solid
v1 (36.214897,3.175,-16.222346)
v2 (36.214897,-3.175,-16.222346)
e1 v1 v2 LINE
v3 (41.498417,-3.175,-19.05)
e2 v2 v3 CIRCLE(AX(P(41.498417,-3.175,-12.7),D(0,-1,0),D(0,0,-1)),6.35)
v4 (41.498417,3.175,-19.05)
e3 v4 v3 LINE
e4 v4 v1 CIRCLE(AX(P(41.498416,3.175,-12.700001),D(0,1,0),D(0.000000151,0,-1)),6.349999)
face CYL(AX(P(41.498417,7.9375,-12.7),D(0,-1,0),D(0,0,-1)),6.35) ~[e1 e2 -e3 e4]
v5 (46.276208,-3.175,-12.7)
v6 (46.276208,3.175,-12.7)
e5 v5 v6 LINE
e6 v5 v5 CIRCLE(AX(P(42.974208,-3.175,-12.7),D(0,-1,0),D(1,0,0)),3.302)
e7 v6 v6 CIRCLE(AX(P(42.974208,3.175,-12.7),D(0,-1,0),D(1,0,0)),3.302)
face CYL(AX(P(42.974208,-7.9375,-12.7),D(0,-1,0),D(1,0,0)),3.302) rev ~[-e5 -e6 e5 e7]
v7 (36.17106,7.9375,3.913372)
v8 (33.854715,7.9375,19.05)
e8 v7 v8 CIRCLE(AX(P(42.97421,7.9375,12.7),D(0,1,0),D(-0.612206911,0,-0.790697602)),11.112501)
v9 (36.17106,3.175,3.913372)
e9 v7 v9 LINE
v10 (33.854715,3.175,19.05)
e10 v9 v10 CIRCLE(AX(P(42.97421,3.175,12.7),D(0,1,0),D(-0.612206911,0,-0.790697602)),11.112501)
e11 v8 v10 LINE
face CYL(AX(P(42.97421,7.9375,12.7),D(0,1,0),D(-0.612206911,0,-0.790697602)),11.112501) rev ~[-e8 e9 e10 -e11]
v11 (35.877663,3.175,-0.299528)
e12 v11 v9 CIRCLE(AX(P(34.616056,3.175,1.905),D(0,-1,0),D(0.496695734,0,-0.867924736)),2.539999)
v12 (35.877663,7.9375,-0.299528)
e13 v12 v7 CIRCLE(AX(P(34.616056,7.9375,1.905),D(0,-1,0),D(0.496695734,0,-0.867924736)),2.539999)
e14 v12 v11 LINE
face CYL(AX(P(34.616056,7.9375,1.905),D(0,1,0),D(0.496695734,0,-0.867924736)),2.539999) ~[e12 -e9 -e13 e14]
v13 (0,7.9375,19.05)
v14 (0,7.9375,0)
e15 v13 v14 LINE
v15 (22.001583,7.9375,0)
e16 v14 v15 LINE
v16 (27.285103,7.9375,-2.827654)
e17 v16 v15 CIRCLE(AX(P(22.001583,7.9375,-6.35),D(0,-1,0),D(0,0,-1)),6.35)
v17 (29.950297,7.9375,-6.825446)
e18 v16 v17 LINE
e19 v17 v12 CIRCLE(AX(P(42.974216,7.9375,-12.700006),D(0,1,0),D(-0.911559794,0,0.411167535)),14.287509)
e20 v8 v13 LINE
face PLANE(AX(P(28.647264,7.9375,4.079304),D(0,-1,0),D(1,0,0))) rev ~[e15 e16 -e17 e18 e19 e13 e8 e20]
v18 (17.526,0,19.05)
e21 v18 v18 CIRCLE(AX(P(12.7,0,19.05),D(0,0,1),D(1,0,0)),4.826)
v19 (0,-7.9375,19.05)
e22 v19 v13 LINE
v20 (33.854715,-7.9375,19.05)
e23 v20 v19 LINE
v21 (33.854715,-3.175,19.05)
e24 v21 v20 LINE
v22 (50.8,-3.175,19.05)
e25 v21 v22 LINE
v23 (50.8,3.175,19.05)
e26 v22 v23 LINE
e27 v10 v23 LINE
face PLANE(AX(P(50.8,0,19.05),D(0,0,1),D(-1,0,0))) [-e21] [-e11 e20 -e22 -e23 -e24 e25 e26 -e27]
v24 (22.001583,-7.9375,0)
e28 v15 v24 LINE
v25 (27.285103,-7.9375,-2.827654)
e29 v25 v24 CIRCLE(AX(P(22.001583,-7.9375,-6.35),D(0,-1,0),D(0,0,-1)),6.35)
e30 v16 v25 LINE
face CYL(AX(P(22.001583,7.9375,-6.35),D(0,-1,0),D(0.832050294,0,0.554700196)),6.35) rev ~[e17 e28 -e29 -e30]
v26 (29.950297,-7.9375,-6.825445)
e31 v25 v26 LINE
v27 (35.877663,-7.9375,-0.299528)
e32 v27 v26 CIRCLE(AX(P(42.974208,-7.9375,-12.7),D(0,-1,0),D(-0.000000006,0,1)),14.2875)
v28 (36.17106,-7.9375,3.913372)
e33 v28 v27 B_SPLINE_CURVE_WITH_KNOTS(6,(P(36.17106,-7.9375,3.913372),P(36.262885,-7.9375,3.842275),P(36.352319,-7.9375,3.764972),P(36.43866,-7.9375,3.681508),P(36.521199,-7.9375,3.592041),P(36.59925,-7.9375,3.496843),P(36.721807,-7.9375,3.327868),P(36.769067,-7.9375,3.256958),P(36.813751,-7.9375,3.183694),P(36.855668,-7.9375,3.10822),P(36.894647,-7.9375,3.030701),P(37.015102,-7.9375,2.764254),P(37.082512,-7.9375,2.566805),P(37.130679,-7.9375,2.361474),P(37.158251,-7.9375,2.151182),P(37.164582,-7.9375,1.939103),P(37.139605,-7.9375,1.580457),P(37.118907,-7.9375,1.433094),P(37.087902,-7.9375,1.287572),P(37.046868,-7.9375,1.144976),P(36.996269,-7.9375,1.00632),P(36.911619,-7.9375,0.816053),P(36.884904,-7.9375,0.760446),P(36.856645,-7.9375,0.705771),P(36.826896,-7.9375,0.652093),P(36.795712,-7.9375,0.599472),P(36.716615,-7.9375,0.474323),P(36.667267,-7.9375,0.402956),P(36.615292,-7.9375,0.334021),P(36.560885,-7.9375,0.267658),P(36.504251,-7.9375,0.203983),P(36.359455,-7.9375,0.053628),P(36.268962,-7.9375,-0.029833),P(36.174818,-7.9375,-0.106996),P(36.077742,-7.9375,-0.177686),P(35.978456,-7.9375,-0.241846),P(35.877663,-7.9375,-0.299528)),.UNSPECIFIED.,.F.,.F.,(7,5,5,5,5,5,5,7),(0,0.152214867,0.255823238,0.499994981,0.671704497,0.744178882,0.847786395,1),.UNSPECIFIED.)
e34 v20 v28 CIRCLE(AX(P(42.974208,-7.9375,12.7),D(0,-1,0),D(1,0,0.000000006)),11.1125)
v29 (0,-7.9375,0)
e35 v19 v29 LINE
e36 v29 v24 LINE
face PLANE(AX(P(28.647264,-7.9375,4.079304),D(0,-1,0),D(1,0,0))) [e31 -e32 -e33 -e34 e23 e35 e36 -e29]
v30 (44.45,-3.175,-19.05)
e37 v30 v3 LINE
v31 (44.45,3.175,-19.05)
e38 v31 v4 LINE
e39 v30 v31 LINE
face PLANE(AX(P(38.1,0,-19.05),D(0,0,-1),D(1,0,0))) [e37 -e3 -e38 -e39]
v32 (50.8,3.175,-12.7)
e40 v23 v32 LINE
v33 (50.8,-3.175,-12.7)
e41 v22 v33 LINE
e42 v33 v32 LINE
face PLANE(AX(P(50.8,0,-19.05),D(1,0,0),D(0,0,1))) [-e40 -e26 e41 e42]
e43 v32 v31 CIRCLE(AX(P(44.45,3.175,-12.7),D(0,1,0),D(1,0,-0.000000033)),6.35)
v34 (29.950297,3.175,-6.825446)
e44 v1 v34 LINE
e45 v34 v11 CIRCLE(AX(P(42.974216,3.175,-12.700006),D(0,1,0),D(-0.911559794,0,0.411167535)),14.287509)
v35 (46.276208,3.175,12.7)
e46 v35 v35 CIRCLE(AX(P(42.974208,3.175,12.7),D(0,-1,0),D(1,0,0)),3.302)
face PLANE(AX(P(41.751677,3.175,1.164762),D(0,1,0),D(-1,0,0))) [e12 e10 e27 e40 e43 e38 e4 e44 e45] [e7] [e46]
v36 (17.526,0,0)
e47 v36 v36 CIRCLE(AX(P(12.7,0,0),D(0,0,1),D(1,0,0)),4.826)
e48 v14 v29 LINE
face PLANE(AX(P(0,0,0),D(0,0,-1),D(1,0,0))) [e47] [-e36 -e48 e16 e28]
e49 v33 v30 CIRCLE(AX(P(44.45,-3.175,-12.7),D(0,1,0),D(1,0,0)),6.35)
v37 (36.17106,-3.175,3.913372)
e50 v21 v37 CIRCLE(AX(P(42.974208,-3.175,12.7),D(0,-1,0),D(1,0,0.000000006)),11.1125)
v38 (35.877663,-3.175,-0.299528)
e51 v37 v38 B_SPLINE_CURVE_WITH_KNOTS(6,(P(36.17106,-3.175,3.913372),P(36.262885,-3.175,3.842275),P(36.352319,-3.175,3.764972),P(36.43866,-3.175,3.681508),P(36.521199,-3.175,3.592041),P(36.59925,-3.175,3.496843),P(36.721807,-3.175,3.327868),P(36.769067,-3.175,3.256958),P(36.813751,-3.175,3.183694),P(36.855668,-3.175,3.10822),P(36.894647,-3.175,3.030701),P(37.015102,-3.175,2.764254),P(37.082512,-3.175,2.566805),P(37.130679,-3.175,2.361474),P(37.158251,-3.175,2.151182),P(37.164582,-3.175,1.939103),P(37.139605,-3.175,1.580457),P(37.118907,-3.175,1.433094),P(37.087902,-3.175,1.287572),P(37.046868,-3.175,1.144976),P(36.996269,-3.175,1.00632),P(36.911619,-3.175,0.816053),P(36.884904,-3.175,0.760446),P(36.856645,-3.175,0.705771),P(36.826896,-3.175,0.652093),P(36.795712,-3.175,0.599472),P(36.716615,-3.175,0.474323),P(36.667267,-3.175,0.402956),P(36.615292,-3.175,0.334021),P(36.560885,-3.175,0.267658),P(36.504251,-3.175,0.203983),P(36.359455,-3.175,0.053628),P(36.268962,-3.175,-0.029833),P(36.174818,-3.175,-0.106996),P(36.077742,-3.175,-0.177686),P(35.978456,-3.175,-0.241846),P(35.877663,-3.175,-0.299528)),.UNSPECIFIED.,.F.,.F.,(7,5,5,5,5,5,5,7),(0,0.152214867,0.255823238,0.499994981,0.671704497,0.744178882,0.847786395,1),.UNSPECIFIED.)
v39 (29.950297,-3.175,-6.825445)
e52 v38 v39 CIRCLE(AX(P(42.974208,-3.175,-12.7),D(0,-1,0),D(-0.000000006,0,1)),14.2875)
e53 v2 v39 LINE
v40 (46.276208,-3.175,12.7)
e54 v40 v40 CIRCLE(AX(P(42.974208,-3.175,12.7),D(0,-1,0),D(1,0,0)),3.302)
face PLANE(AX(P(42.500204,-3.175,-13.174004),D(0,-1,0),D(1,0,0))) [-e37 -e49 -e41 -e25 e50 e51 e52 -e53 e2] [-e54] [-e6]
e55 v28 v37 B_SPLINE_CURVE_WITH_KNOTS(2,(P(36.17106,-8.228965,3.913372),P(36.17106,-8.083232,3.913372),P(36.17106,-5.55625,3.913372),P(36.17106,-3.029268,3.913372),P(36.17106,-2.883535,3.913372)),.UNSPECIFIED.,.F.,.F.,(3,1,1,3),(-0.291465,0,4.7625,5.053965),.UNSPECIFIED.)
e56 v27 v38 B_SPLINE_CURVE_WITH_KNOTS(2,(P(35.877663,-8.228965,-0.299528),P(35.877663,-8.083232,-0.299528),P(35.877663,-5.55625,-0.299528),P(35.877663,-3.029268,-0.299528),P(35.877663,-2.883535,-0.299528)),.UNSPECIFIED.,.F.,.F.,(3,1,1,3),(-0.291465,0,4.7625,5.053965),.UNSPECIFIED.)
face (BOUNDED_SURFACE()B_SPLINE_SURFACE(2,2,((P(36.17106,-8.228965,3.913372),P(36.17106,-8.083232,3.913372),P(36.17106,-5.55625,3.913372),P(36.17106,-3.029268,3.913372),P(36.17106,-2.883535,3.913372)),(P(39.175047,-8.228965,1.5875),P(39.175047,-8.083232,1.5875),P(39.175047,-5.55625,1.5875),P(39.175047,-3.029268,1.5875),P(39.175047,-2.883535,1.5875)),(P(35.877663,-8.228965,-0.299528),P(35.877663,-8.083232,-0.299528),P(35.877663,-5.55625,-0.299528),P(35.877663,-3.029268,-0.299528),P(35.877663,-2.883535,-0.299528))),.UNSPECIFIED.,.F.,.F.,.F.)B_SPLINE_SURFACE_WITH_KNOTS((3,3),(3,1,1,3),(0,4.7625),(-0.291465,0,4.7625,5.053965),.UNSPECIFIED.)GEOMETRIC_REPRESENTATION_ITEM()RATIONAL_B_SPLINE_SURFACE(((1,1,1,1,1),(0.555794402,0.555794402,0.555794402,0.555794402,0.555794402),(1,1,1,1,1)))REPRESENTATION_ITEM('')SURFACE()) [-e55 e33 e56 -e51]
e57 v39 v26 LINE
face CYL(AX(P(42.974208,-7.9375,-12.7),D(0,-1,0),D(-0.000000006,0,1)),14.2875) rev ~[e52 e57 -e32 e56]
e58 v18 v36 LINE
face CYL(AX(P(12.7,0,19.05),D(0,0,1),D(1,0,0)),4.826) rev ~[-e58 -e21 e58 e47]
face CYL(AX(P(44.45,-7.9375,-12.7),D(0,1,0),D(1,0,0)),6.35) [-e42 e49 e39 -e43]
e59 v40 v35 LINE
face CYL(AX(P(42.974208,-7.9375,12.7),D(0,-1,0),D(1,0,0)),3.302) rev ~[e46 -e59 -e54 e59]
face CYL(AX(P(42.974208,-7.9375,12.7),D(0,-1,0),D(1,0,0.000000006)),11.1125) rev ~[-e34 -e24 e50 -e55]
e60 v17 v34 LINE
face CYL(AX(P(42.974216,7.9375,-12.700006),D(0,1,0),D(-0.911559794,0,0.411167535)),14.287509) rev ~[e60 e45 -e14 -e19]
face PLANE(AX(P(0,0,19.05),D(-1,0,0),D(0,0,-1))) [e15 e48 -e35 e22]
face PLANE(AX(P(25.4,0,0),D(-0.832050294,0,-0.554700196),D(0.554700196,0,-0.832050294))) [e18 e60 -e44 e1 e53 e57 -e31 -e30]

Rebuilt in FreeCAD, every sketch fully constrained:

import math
import FreeCAD as App
import Part
import Sketcher

V = App.Vector
Q = App.Units.Quantity


def edges_at(feature, points):
    """Names of the edges that pass closest to the given points."""
    edges = feature.Shape.Edges
    near = lambda p: min(range(len(edges)), key=lambda i: edges[i].distToShape(Part.Vertex(*p))[0])
    return sorted({f"Edge{near(p) + 1}" for p in points})

doc = App.newDocument("Part")
body = doc.addObject("PartDesign::Body", "Body")

# Sketch on XZ plane
sketch1 = doc.addObject("Sketcher::SketchObject", "Sketch")
body.addObject(sketch1)
sketch1.AttachmentSupport = (doc.XZ_Plane, [""])
sketch1.MapMode = "FlatFace"
sketch1.addGeometry(Part.LineSegment(V(0, 19, 0), V(0, 0, 0)), False)
sketch1.addGeometry(Part.LineSegment(V(0, 0, 0), V(25, 0, 0)), False)
sketch1.addGeometry(Part.LineSegment(V(25, 0, 0), V(38, -19, 0)), False)
sketch1.addGeometry(Part.LineSegment(V(38, -19, 0), V(51, -19, 0)), False)
sketch1.addGeometry(Part.LineSegment(V(51, -19, 0), V(51, 19, 0)), False)
sketch1.addGeometry(Part.LineSegment(V(51, 19, 0), V(0, 19, 0)), False)
sketch1.addConstraint(Sketcher.Constraint("Coincident", 0, 2, 1, 1))
sketch1.addConstraint(Sketcher.Constraint("Coincident", 1, 2, 2, 1))
sketch1.addConstraint(Sketcher.Constraint("Coincident", 2, 2, 3, 1))
sketch1.addConstraint(Sketcher.Constraint("Coincident", 3, 2, 4, 1))
sketch1.addConstraint(Sketcher.Constraint("Coincident", 4, 2, 5, 1))
sketch1.addConstraint(Sketcher.Constraint("Coincident", 5, 2, 0, 1))
sketch1.addConstraint(Sketcher.Constraint("Vertical", 0))
sketch1.addConstraint(Sketcher.Constraint("Horizontal", 1))
sketch1.addConstraint(Sketcher.Constraint("Horizontal", 3))
sketch1.addConstraint(Sketcher.Constraint("Vertical", 4))
sketch1.addConstraint(Sketcher.Constraint("Horizontal", 5))
sketch1.addConstraint(Sketcher.Constraint("Coincident", 0, 2, -1, 1))
sketch1.addConstraint(Sketcher.Constraint("DistanceX", 1, 1, 1, 2, Q("1 in")))
sketch1.addConstraint(Sketcher.Constraint("DistanceX", 5, 2, 5, 1, Q("2 in")))
sketch1.addConstraint(Sketcher.Constraint("DistanceX", 3, 1, 3, 2, Q("0.5 in")))
sketch1.addConstraint(Sketcher.Constraint("DistanceY", 4, 1, 4, 2, Q("1.5 in")))
sketch1.addConstraint(Sketcher.Constraint("DistanceY", 0, 2, 0, 1, Q("0.75 in")))
pad1 = doc.addObject("PartDesign::Pad", "Pad")
body.addObject(pad1)
pad1.Profile = sketch1
pad1.Type = "TwoLengths"
pad1.Length = Q("0.3125 in")
pad1.Length2 = Q("0.3125 in")
doc.recompute()

fillet = doc.addObject("PartDesign::Fillet", "Fillet")
body.addObject(fillet)
fillet.Base = (pad1, edges_at(pad1, [(25.4, 0, 0), (38.1, 0, -19.05), (50.8, 0, -19.05)]))
fillet.Radius = Q("0.25 in")

# Sketch on XZ plane
sketch2 = doc.addObject("Sketcher::SketchObject", "Sketch001")
body.addObject(sketch2)
sketch2.AttachmentSupport = (doc.XZ_Plane, [""])
sketch2.MapMode = "FlatFace"
sketch2.AttachmentOffset = App.Placement(V(0, 0, 0.3125 * 25.4), App.Rotation())
sketch2.addGeometry(Part.Circle(V(43, -12.7, 0), V(0, 0, 1), 3.3), False)
sketch2.addGeometry(Part.Circle(V(43, 12.7, 0), V(0, 0, 1), 3.3), False)
sketch2.addConstraint(Sketcher.Constraint("Equal", 0, 1))
sketch2.addConstraint(Sketcher.Constraint("Symmetric", 0, 3, 1, 3, -1))
sketch2.addConstraint(Sketcher.Constraint("Diameter", 0, Q("0.26 in")))
sketch2.addConstraint(Sketcher.Constraint("DistanceY", 0, 3, 1, 3, Q("1 in")))
sketch2.addConstraint(Sketcher.Constraint("DistanceX", -1, 1, 0, 3, Q("42.974208 mm")))
pocket1 = doc.addObject("PartDesign::Pocket", "Pocket")
body.addObject(pocket1)
pocket1.Profile = sketch2
pocket1.Length = Q("1 in")

# Sketch on XZ plane
sketch3 = doc.addObject("Sketcher::SketchObject", "Sketch002")
body.addObject(sketch3)
sketch3.AttachmentSupport = (doc.XZ_Plane, [""])
sketch3.MapMode = "FlatFace"
sketch3.AttachmentOffset = App.Placement(V(0, 0, 0.3125 * 25.4), App.Rotation())
sketch3.addGeometry(Part.ArcOfCircle(Part.Circle(V(43, -12.7, 0), V(0, 0, 1), 14.3), math.radians(90), math.radians(360)), False)
sketch3.addGeometry(Part.LineSegment(V(57.3, -12.7, 0), V(61.7, -12.7, 0)), False)
sketch3.addGeometry(Part.LineSegment(V(61.7, -12.7, 0), V(61.7, 12.7, 0)), False)
sketch3.addGeometry(Part.LineSegment(V(61.7, 12.7, 0), V(54.1, 12.7, 0)), False)
sketch3.addGeometry(Part.ArcOfCircle(Part.Circle(V(43, 12.7, 0), V(0, 0, 1), 11.1), math.radians(0), math.radians(270)), False)
sketch3.addConstraint(Sketcher.Constraint("Coincident", 0, 2, 1, 1))
sketch3.addConstraint(Sketcher.Constraint("Coincident", 1, 2, 2, 1))
sketch3.addConstraint(Sketcher.Constraint("Coincident", 2, 2, 3, 1))
sketch3.addConstraint(Sketcher.Constraint("Coincident", 3, 2, 4, 1))
sketch3.addConstraint(Sketcher.Constraint("Tangent", 4, 2, 0, 1))
sketch3.addConstraint(Sketcher.Constraint("Horizontal", 1))
sketch3.addConstraint(Sketcher.Constraint("Vertical", 2))
sketch3.addConstraint(Sketcher.Constraint("Horizontal", 3))
sketch3.addConstraint(Sketcher.Constraint("Symmetric", 0, 3, 4, 3, -1))
sketch3.addConstraint(Sketcher.Constraint("Horizontal", 4, 3, 2, 2))
sketch3.addConstraint(Sketcher.Constraint("DistanceY", 2, 1, 2, 2, Q("1 in")))
sketch3.addConstraint(Sketcher.Constraint("Radius", 0, Q("0.5625 in")))
sketch3.addConstraint(Sketcher.Constraint("Radius", 4, Q("0.4375 in")))
sketch3.addConstraint(Sketcher.Constraint("DistanceX", 1, 1, 1, 2, Q("4.446146 mm")))
sketch3.addConstraint(Sketcher.Constraint("DistanceX", -1, 1, 0, 3, Q("42.974208 mm")))
pocket2 = doc.addObject("PartDesign::Pocket", "Pocket001")
body.addObject(pocket2)
pocket2.Profile = sketch3
pocket2.Length = Q("0.1875 in")
doc.recompute()

fillet2 = doc.addObject("PartDesign::Fillet", "Fillet001")
body.addObject(fillet2)
fillet2.Base = (pocket2, edges_at(pocket2, [(42.974, -5.556, 1.587)]))
fillet2.Radius = Q("0.1 in")

# Sketch on XZ plane
sketch4 = doc.addObject("Sketcher::SketchObject", "Sketch003")
body.addObject(sketch4)
sketch4.AttachmentSupport = (doc.XZ_Plane, [""])
sketch4.MapMode = "FlatFace"
sketch4.AttachmentOffset = App.Placement(V(0, 0, -0.3125 * 25.4), App.Rotation())
sketch4.addGeometry(Part.LineSegment(V(50.8, 19.1, 0), V(50.8, -12.7, 0)), False)
sketch4.addGeometry(Part.ArcOfCircle(Part.Circle(V(44.4, -12.7, 0), V(0, 0, 1), 6.4), math.radians(-90), math.radians(0)), False)
sketch4.addGeometry(Part.LineSegment(V(44.5, -19.1, 0), V(41.5, -19.1, 0)), False)
sketch4.addGeometry(Part.ArcOfCircle(Part.Circle(V(41.5, -12.7, 0), V(0, 0, 1), 6.3), math.radians(-146), math.radians(-90)), False)
sketch4.addGeometry(Part.LineSegment(V(36.2, -16.2, 0), V(30, -6.8, 0)), False)
sketch4.addGeometry(Part.ArcOfCircle(Part.Circle(V(43, -12.7, 0), V(0, 0, 1), 14.3), math.radians(120), math.radians(156)), False)
sketch4.addGeometry(Part.ArcOfCircle(Part.Circle(V(34.6, 1.9, 0), V(0, 0, 1), 2.5), math.radians(-60), math.radians(52)), False)
sketch4.addGeometry(Part.ArcOfCircle(Part.Circle(V(43, 12.7, 0), V(0, 0, 1), 11.1), math.radians(145), math.radians(232)), False)
sketch4.addGeometry(Part.LineSegment(V(33.9, 19.1, 0), V(50.8, 19.1, 0)), False)
sketch4.addConstraint(Sketcher.Constraint("Tangent", 0, 2, 1, 2))
sketch4.addConstraint(Sketcher.Constraint("Tangent", 1, 1, 2, 1))
sketch4.addConstraint(Sketcher.Constraint("Tangent", 2, 2, 3, 2))
sketch4.addConstraint(Sketcher.Constraint("Tangent", 3, 1, 4, 1))
sketch4.addConstraint(Sketcher.Constraint("Coincident", 4, 2, 5, 2))
sketch4.addConstraint(Sketcher.Constraint("Tangent", 5, 1, 6, 1))
sketch4.addConstraint(Sketcher.Constraint("Tangent", 6, 2, 7, 2))
sketch4.addConstraint(Sketcher.Constraint("Coincident", 7, 1, 8, 1))
sketch4.addConstraint(Sketcher.Constraint("Coincident", 8, 2, 0, 1))
sketch4.addConstraint(Sketcher.Constraint("Vertical", 0))
sketch4.addConstraint(Sketcher.Constraint("Horizontal", 2))
sketch4.addConstraint(Sketcher.Constraint("Horizontal", 8))
sketch4.addConstraint(Sketcher.Constraint("Equal", 1, 3))
sketch4.addConstraint(Sketcher.Constraint("Symmetric", 5, 3, 7, 3, -1))
sketch4.addConstraint(Sketcher.Constraint("Radius", 6, Q("0.1 in")))
sketch4.addConstraint(Sketcher.Constraint("Radius", 1, Q("0.25 in")))
sketch4.addConstraint(Sketcher.Constraint("DistanceX", -1, 1, 0, 2, Q("2 in")))
sketch4.addConstraint(Sketcher.Constraint("Radius", 7, Q("0.4375001 in")))
sketch4.addConstraint(Sketcher.Constraint("DistanceY", 1, 3, 7, 3, Q("1 in")))
sketch4.addConstraint(Sketcher.Constraint("DistanceY", 0, 2, 0, 1, Q("1.25 in")))
sketch4.addConstraint(Sketcher.Constraint("DistanceY", 1, 3, -1, 1, Q("0.5 in")))
sketch4.addConstraint(Sketcher.Constraint("DistanceY", -1, 1, 6, 3, Q("0.075 in")))
sketch4.addConstraint(Sketcher.Constraint("DistanceX", 3, 3, 5, 3, Q("1.4758 mm")))
sketch4.addConstraint(Sketcher.Constraint("DistanceX", 4, 2, 3, 1, Q("6.2646 mm")))
sketch4.addConstraint(Sketcher.Constraint("DistanceX", 2, 2, 2, 1, Q("2.951583 mm")))
pocket3 = doc.addObject("PartDesign::Pocket", "Pocket002")
body.addObject(pocket3)
pocket3.Profile = sketch4
pocket3.Length = Q("0.1875 in")
pocket3.Reversed = True

# Sketch on XY plane
sketch5 = doc.addObject("Sketcher::SketchObject", "Sketch004")
body.addObject(sketch5)
sketch5.AttachmentSupport = (doc.XY_Plane, [""])
sketch5.MapMode = "FlatFace"
sketch5.AttachmentOffset = App.Placement(V(0, 0, 0.75 * 25.4), App.Rotation())
sketch5.addGeometry(Part.Circle(V(12.7, 0, 0), V(0, 0, 1), 4.8), False)
sketch5.addConstraint(Sketcher.Constraint("PointOnObject", 0, 3, -1))
sketch5.addConstraint(Sketcher.Constraint("Diameter", 0, Q("0.38 in")))
sketch5.addConstraint(Sketcher.Constraint("DistanceX", -1, 1, 0, 3, Q("0.5 in")))
pocket4 = doc.addObject("PartDesign::Pocket", "Pocket003")
body.addObject(pocket4)
pocket4.Profile = sketch5
pocket4.Type = "ThroughAll"

doc.recompute()
